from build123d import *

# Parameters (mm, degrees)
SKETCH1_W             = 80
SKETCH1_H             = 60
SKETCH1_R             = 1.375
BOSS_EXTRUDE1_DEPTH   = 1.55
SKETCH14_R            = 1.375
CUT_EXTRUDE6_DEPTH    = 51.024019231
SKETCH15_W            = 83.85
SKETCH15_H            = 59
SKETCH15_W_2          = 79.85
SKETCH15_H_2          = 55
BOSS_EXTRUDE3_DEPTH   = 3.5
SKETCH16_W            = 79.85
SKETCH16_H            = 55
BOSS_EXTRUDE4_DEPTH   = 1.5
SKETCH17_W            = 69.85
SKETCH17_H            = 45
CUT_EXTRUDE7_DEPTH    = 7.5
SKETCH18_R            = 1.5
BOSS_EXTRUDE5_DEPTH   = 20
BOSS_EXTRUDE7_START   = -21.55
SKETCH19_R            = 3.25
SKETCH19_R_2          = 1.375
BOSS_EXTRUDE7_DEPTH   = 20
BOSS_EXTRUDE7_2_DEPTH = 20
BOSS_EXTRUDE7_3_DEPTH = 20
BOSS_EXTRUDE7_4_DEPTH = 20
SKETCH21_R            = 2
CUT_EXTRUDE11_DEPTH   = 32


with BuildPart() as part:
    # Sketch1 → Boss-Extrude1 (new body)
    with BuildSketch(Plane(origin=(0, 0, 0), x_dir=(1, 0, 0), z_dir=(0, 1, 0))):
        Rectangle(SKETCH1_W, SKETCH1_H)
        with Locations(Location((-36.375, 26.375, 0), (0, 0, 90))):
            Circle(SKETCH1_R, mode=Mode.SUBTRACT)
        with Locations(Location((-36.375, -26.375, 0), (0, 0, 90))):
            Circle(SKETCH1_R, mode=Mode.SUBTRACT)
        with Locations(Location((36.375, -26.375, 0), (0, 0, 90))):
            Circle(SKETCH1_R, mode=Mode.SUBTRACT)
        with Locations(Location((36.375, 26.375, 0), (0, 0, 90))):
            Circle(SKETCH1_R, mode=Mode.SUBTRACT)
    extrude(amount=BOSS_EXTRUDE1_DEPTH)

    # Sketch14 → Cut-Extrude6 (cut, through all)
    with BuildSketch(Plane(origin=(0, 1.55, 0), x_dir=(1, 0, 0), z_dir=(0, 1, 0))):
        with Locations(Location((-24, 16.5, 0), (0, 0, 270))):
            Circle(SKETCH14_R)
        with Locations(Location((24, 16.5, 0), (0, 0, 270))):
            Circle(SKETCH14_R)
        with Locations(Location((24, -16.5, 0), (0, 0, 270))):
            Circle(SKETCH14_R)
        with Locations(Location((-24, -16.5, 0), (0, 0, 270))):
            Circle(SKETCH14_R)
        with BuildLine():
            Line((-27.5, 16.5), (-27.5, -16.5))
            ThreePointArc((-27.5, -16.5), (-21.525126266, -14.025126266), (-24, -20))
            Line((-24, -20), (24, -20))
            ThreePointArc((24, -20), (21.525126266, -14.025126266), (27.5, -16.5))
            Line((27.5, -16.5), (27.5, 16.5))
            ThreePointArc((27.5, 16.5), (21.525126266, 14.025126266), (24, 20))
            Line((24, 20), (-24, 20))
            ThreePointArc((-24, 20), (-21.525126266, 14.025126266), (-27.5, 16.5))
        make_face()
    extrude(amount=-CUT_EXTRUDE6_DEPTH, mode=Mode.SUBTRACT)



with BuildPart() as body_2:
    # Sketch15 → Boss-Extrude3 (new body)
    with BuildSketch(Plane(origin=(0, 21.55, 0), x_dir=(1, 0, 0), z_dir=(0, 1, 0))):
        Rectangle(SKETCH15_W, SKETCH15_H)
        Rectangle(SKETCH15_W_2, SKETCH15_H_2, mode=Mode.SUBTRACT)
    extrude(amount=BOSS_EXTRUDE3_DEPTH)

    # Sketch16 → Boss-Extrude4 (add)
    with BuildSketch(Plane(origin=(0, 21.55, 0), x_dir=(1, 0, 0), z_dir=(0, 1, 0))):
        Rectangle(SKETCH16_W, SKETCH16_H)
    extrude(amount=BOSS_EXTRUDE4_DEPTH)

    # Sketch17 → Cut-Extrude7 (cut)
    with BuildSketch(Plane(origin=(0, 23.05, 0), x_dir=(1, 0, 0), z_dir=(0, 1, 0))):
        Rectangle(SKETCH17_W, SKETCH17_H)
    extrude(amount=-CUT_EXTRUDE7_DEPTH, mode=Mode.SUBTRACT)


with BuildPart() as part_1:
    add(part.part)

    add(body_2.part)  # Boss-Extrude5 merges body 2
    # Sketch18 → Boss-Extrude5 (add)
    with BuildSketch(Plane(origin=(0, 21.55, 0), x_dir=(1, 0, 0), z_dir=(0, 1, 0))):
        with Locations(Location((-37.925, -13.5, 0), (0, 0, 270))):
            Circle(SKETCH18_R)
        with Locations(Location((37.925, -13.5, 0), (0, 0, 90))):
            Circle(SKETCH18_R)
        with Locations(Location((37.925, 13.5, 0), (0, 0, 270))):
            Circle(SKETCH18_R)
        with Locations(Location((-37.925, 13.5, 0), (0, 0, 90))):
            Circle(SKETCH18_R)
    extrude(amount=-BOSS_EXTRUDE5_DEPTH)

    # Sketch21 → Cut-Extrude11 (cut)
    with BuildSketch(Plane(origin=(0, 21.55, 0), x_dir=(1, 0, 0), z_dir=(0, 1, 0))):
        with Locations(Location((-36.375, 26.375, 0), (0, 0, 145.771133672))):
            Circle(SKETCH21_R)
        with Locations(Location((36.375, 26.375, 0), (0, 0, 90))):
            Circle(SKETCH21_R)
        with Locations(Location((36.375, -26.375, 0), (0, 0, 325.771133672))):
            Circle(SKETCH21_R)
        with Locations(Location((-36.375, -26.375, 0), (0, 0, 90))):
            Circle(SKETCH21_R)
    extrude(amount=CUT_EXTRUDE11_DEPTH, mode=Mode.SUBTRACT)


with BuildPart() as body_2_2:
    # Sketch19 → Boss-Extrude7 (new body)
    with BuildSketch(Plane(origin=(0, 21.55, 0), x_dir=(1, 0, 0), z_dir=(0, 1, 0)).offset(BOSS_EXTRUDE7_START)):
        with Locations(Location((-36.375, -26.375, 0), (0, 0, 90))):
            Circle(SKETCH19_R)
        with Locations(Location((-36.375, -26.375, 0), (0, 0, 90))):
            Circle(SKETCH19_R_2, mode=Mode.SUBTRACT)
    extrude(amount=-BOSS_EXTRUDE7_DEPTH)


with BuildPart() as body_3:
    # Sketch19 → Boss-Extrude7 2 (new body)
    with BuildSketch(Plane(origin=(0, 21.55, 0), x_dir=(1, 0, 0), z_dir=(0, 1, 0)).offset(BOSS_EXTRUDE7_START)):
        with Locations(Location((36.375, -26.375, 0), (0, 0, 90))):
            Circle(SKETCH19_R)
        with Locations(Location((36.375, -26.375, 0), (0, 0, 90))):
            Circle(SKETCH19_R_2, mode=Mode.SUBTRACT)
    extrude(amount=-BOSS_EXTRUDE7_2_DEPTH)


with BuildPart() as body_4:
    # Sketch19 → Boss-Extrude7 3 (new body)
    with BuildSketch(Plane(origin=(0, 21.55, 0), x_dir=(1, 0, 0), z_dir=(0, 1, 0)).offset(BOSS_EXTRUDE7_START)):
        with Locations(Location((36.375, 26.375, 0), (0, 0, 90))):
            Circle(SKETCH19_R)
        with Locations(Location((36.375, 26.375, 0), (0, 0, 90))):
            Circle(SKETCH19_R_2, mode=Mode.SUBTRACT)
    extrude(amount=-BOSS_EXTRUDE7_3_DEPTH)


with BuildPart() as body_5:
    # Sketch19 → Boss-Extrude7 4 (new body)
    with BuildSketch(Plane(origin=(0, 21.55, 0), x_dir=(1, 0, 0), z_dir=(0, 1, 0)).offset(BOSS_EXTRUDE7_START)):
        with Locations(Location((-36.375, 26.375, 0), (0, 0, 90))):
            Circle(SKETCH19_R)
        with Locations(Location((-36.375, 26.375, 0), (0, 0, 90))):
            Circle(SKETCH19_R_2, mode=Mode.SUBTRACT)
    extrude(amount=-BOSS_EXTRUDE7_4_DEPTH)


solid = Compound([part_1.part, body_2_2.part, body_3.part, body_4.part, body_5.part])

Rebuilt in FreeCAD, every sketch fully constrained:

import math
import FreeCAD as App
import Part
import Sketcher
from FreeCAD import Vector

doc = App.newDocument("Part")
body = doc.addObject("PartDesign::Body", "Body")

sketch1 = body.newObject("Sketcher::SketchObject", "Sketch")
sketch1.AttachmentSupport = (doc.getObject("XZ_Plane"), [""])
sketch1.MapMode = "FlatFace"
sketch1.addGeometry([
    Part.LineSegment(Vector(-40, -30, 0), Vector(-40, 30, 0)),
    Part.LineSegment(Vector(-40, 30, 0), Vector(40, 30, 0)),
    Part.LineSegment(Vector(40, 30, 0), Vector(40, -30, 0)),
    Part.LineSegment(Vector(40, -30, 0), Vector(-40, -30, 0)),
    Part.Circle(Vector(-36.4, 26.4, 0), Vector(0, 0, 1), 1.4),
    Part.Circle(Vector(36.4, 26.4, 0), Vector(0, 0, 1), 1.4),
    Part.Circle(Vector(-36.4, -26.4, 0), Vector(0, 0, 1), 1.4),
    Part.Circle(Vector(36.4, -26.4, 0), Vector(0, 0, 1), 1.4),
], False)
sketch1.addConstraint([
    Sketcher.Constraint("Coincident", 0, 2, 1, 1),
    Sketcher.Constraint("Coincident", 1, 2, 2, 1),
    Sketcher.Constraint("Coincident", 2, 2, 3, 1),
    Sketcher.Constraint("Coincident", 3, 2, 0, 1),
    Sketcher.Constraint("Vertical", 0),
    Sketcher.Constraint("Horizontal", 1),
    Sketcher.Constraint("Vertical", 2),
    Sketcher.Constraint("Horizontal", 3),
    Sketcher.Constraint("Equal", 4, 5),
    Sketcher.Constraint("Equal", 5, 6),
    Sketcher.Constraint("Equal", 6, 7),
    Sketcher.Constraint("Symmetric", 5, 3, 6, 3, -1, 1),
    Sketcher.Constraint("Symmetric", 4, 3, 7, 3, -1, 1),
    Sketcher.Constraint("Symmetric", 0, 2, 2, 2, -1, 1),
    Sketcher.Constraint("Symmetric", 4, 3, 5, 3, -2),
    Sketcher.Constraint("Diameter", 4, 2.75),
    Sketcher.Constraint("DistanceX", 1, 1, 1, 2, 80.0),
    Sketcher.Constraint("DistanceY", 0, 1, 0, 2, 60.0),
    Sketcher.Constraint("DistanceX", 4, 3, 5, 3, 72.75),
    Sketcher.Constraint("DistanceY", 6, 3, 4, 3, 52.75),
])
pad1 = body.newObject("PartDesign::Pad", "Pad")
pad1.Profile = sketch1
pad1.Length = 1.55
pad1.Reversed = True

sketch2 = body.newObject("Sketcher::SketchObject", "Sketch001")
sketch2.AttachmentSupport = (doc.getObject("XZ_Plane"), [""])
sketch2.MapMode = "FlatFace"
sketch2.AttachmentOffset = App.Placement(Vector(0, 0, -1.55), App.Rotation())
sketch2.addGeometry([
    Part.Circle(Vector(-24, -16.5, 0), Vector(0, 0, 1), 1.4),
    Part.Circle(Vector(24, -16.5, 0), Vector(0, 0, 1), 1.4),
    Part.Circle(Vector(24, 16.5, 0), Vector(0, 0, 1), 1.4),
    Part.Circle(Vector(-24, 16.5, 0), Vector(0, 0, 1), 1.4),
    Part.LineSegment(Vector(-27.5, -16.5, 0), Vector(-27.5, 16.5, 0)),
    Part.ArcOfCircle(Part.Circle(Vector(-24, 16.5, 0), Vector(0, 0, 1), 3.5), math.radians(180), math.radians(450)),
    Part.LineSegment(Vector(-24, 20, 0), Vector(24, 20, 0)),
    Part.ArcOfCircle(Part.Circle(Vector(24, 16.5, 0), Vector(0, 0, 1), 3.5), math.radians(90), math.radians(360)),
    Part.LineSegment(Vector(27.5, 16.5, 0), Vector(27.5, -16.5, 0)),
    Part.ArcOfCircle(Part.Circle(Vector(24, -16.5, 0), Vector(0, 0, 1), 3.5), math.radians(0), math.radians(270)),
    Part.LineSegment(Vector(24, -20, 0), Vector(-24, -20, 0)),
    Part.ArcOfCircle(Part.Circle(Vector(-24, -16.5, 0), Vector(0, 0, 1), 3.5), math.radians(-90), math.radians(180)),
], False)
sketch2.addConstraint([
    Sketcher.Constraint("Tangent", 4, 2, 5, 1),
    Sketcher.Constraint("Tangent", 5, 2, 6, 1),
    Sketcher.Constraint("Tangent", 6, 2, 7, 1),
    Sketcher.Constraint("Tangent", 7, 2, 8, 1),
    Sketcher.Constraint("Tangent", 8, 2, 9, 1),
    Sketcher.Constraint("Tangent", 9, 2, 10, 1),
    Sketcher.Constraint("Tangent", 10, 2, 11, 1),
    Sketcher.Constraint("Tangent", 11, 2, 4, 1),
    Sketcher.Constraint("Vertical", 4),
    Sketcher.Constraint("Horizontal", 6),
    Sketcher.Constraint("Vertical", 8),
    Sketcher.Constraint("Horizontal", 10),
    Sketcher.Constraint("Coincident", 5, 3, 3, 3),
    Sketcher.Constraint("Coincident", 7, 3, 2, 3),
    Sketcher.Constraint("Coincident", 9, 3, 1, 3),
    Sketcher.Constraint("Coincident", 11, 3, 0, 3),
    Sketcher.Constraint("Equal", 0, 1),
    Sketcher.Constraint("Equal", 1, 2),
    Sketcher.Constraint("Equal", 2, 3),
    Sketcher.Constraint("Equal", 5, 7),
    Sketcher.Constraint("Equal", 7, 9),
    Sketcher.Constraint("Equal", 9, 11),
    Sketcher.Constraint("Symmetric", 0, 3, 2, 3, -1, 1),
    Sketcher.Constraint("Radius", 5, 3.5),
    Sketcher.Constraint("Diameter", 0, 2.75),
    Sketcher.Constraint("DistanceX", 6, 1, 6, 2, 48.0),
    Sketcher.Constraint("DistanceY", 4, 1, 4, 2, 33.0),
])
pocket1 = body.newObject("PartDesign::Pocket", "Pocket")
pocket1.Profile = sketch2
pocket1.Type = "ThroughAll"
pocket1.Reversed = True
body2 = doc.addObject("PartDesign::Body", "Body001")

sketch3 = body2.newObject("Sketcher::SketchObject", "Sketch002")
sketch3.AttachmentSupport = (doc.getObject("XZ_Plane001"), [""])
sketch3.MapMode = "FlatFace"
sketch3.AttachmentOffset = App.Placement(Vector(0, 0, -21.55), App.Rotation())
sketch3.addGeometry([
    Part.LineSegment(Vector(-42, -30, 0), Vector(-42, 30, 0)),
    Part.LineSegment(Vector(-42, 30, 0), Vector(42, 30, 0)),
    Part.LineSegment(Vector(42, 30, 0), Vector(42, -30, 0)),
    Part.LineSegment(Vector(42, -30, 0), Vector(-42, -30, 0)),
    Part.LineSegment(Vector(40, 28, 0), Vector(-40, 28, 0)),
    Part.LineSegment(Vector(-40, 28, 0), Vector(-40, -28, 0)),
    Part.LineSegment(Vector(-40, -28, 0), Vector(40, -28, 0)),
    Part.LineSegment(Vector(40, -28, 0), Vector(40, 28, 0)),
], False)
sketch3.addConstraint([
    Sketcher.Constraint("Coincident", 0, 2, 1, 1),
    Sketcher.Constraint("Coincident", 1, 2, 2, 1),
    Sketcher.Constraint("Coincident", 2, 2, 3, 1),
    Sketcher.Constraint("Coincident", 3, 2, 0, 1),
    Sketcher.Constraint("Coincident", 4, 2, 5, 1),
    Sketcher.Constraint("Coincident", 5, 2, 6, 1),
    Sketcher.Constraint("Coincident", 6, 2, 7, 1),
    Sketcher.Constraint("Coincident", 7, 2, 4, 1),
    Sketcher.Constraint("Vertical", 0),
    Sketcher.Constraint("Horizontal", 1),
    Sketcher.Constraint("Vertical", 2),
    Sketcher.Constraint("Horizontal", 3),
    Sketcher.Constraint("Horizontal", 4),
    Sketcher.Constraint("Vertical", 5),
    Sketcher.Constraint("Horizontal", 6),
    Sketcher.Constraint("Vertical", 7),
    Sketcher.Constraint("Symmetric", 0, 2, 2, 2, -1, 1),
    Sketcher.Constraint("Symmetric", 4, 2, 6, 2, -1, 1),
    Sketcher.Constraint("DistanceY", 0, 1, 0, 2, 59.0),
    Sketcher.Constraint("DistanceY", 5, 2, 5, 1, 55.0),
    Sketcher.Constraint("DistanceX", 0, 2, 4, 2, 2.0),
    Sketcher.Constraint("DistanceX", 1, 1, 1, 2, 83.85),
])
pad2 = body2.newObject("PartDesign::Pad", "Pad001")
pad2.Profile = sketch3
pad2.Length = 3.5
pad2.Reversed = True

sketch4 = body2.newObject("Sketcher::SketchObject", "Sketch003")
sketch4.AttachmentSupport = (doc.getObject("XZ_Plane001"), [""])
sketch4.MapMode = "FlatFace"
sketch4.AttachmentOffset = App.Placement(Vector(0, 0, -21.55), App.Rotation())
sketch4.addGeometry([
    Part.LineSegment(Vector(-40, -28, 0), Vector(-40, 28, 0)),
    Part.LineSegment(Vector(-40, 28, 0), Vector(40, 28, 0)),
    Part.LineSegment(Vector(40, 28, 0), Vector(40, -28, 0)),
    Part.LineSegment(Vector(40, -28, 0), Vector(-40, -28, 0)),
], False)
sketch4.addConstraint([
    Sketcher.Constraint("Coincident", 0, 2, 1, 1),
    Sketcher.Constraint("Coincident", 1, 2, 2, 1),
    Sketcher.Constraint("Coincident", 2, 2, 3, 1),
    Sketcher.Constraint("Coincident", 3, 2, 0, 1),
    Sketcher.Constraint("Vertical", 0),
    Sketcher.Constraint("Horizontal", 1),
    Sketcher.Constraint("Vertical", 2),
    Sketcher.Constraint("Horizontal", 3),
    Sketcher.Constraint("Symmetric", 0, 2, 2, 2, -1, 1),
    Sketcher.Constraint("DistanceY", 0, 1, 0, 2, 55.0),
    Sketcher.Constraint("DistanceX", 1, 1, 1, 2, 79.85),
])
pad3 = body2.newObject("PartDesign::Pad", "Pad002")
pad3.Profile = sketch4
pad3.Length = 1.5
pad3.Reversed = True

sketch5 = body2.newObject("Sketcher::SketchObject", "Sketch004")
sketch5.AttachmentSupport = (doc.getObject("XZ_Plane001"), [""])
sketch5.MapMode = "FlatFace"
sketch5.AttachmentOffset = App.Placement(Vector(0, 0, -23.05), App.Rotation())
sketch5.addGeometry([
    Part.LineSegment(Vector(-35, -22, 0), Vector(-35, 22, 0)),
    Part.LineSegment(Vector(-35, 22, 0), Vector(35, 22, 0)),
    Part.LineSegment(Vector(35, 22, 0), Vector(35, -22, 0)),
    Part.LineSegment(Vector(35, -22, 0), Vector(-35, -22, 0)),
], False)
sketch5.addConstraint([
    Sketcher.Constraint("Coincident", 0, 2, 1, 1),
    Sketcher.Constraint("Coincident", 1, 2, 2, 1),
    Sketcher.Constraint("Coincident", 2, 2, 3, 1),
    Sketcher.Constraint("Coincident", 3, 2, 0, 1),
    Sketcher.Constraint("Vertical", 0),
    Sketcher.Constraint("Horizontal", 1),
    Sketcher.Constraint("Vertical", 2),
    Sketcher.Constraint("Horizontal", 3),
    Sketcher.Constraint("Symmetric", 0, 2, 2, 2, -1, 1),
    Sketcher.Constraint("DistanceY", 0, 1, 0, 2, 45.0),
    Sketcher.Constraint("DistanceX", 1, 1, 1, 2, 69.85),
])
pocket2 = body2.newObject("PartDesign::Pocket", "Pocket001")
pocket2.Profile = sketch5
pocket2.Length = 7.5
pocket2.Reversed = True
body.AllowCompound = True
doc.recompute()

boolean = body.newObject("PartDesign::Boolean", "Boolean")
boolean.Type = "Fuse"
boolean.addObjects([body2])

sketch6 = body.newObject("Sketcher::SketchObject", "Sketch005")
sketch6.AttachmentSupport = (doc.getObject("XZ_Plane"), [""])
sketch6.MapMode = "FlatFace"
sketch6.AttachmentOffset = App.Placement(Vector(0, 0, -21.55), App.Rotation())
sketch6.addGeometry([
    Part.Circle(Vector(-37.9, 13.5, 0), Vector(0, 0, 1), 1.5),
    Part.Circle(Vector(37.9, 13.5, 0), Vector(0, 0, 1), 1.5),
    Part.Circle(Vector(37.9, -13.5, 0), Vector(0, 0, 1), 1.5),
    Part.Circle(Vector(-37.9, -13.5, 0), Vector(0, 0, 1), 1.5),
], False)
sketch6.addConstraint([
    Sketcher.Constraint("Equal", 0, 1),
    Sketcher.Constraint("Equal", 1, 2),
    Sketcher.Constraint("Equal", 2, 3),
    Sketcher.Constraint("Symmetric", 0, 3, 2, 3, -1, 1),
    Sketcher.Constraint("Symmetric", 1, 3, 3, 3, -1, 1),
    Sketcher.Constraint("Symmetric", 0, 3, 1, 3, -2),
    Sketcher.Constraint("Diameter", 0, 3.0),
    Sketcher.Constraint("DistanceY", 2, 3, 1, 3, 27.0),
    Sketcher.Constraint("DistanceX", 0, 3, 1, 3, 75.85),
])
pad4 = body.newObject("PartDesign::Pad", "Pad003")
pad4.Profile = sketch6
pad4.Length = 20

sketch7 = body.newObject("Sketcher::SketchObject", "Sketch006")
sketch7.AttachmentSupport = (doc.getObject("XZ_Plane"), [""])
sketch7.MapMode = "FlatFace"
sketch7.AttachmentOffset = App.Placement(Vector(0, 0, -21.55), App.Rotation())
sketch7.addGeometry([
    Part.Circle(Vector(-36.4, -26.4, 0), Vector(0, 0, 1), 2),
    Part.Circle(Vector(36.4, -26.4, 0), Vector(0, 0, 1), 2),
    Part.Circle(Vector(36.4, 26.4, 0), Vector(0, 0, 1), 2),
    Part.Circle(Vector(-36.4, 26.4, 0), Vector(0, 0, 1), 2),
], False)
sketch7.addConstraint([
    Sketcher.Constraint("Equal", 0, 1),
    Sketcher.Constraint("Equal", 1, 2),
    Sketcher.Constraint("Equal", 2, 3),
    Sketcher.Constraint("Symmetric", 0, 3, 2, 3, -1, 1),
    Sketcher.Constraint("Symmetric", 1, 3, 3, 3, -1, 1),
    Sketcher.Constraint("Symmetric", 0, 3, 1, 3, -2),
    Sketcher.Constraint("Diameter", 0, 4.0),
    Sketcher.Constraint("DistanceX", 0, 3, 1, 3, 72.75),
    Sketcher.Constraint("DistanceY", 1, 3, 2, 3, 52.75),
])
pocket3 = body.newObject("PartDesign::Pocket", "Pocket002")
pocket3.Profile = sketch7
pocket3.Length = 32
body3 = doc.addObject("PartDesign::Body", "Body002")

sketch8 = body3.newObject("Sketcher::SketchObject", "Sketch007")
sketch8.AttachmentSupport = (doc.getObject("XZ_Plane002"), [""])
sketch8.MapMode = "FlatFace"
sketch8.addGeometry([
    Part.Circle(Vector(-36.4, 26.4, 0), Vector(0, 0, 1), 3.2),
    Part.Circle(Vector(-36.4, 26.4, 0), Vector(0, 0, 1), 1.4),
], False)
sketch8.addConstraint([
    Sketcher.Constraint("Coincident", 1, 3, 0, 3),
    Sketcher.Constraint("Diameter", 0, 6.5),
    Sketcher.Constraint("Diameter", 1, 2.75),
    Sketcher.Constraint("DistanceX", 0, 3, -1, 1, 36.375),
    Sketcher.Constraint("DistanceY", -1, 1, 0, 3, 26.375),
])
pad5 = body3.newObject("PartDesign::Pad", "Pad004")
pad5.Profile = sketch8
pad5.Length = 20
body4 = doc.addObject("PartDesign::Body", "Body003")

sketch9 = body4.newObject("Sketcher::SketchObject", "Sketch008")
sketch9.AttachmentSupport = (doc.getObject("XZ_Plane003"), [""])
sketch9.MapMode = "FlatFace"
sketch9.addGeometry([
    Part.Circle(Vector(36.4, 26.4, 0), Vector(0, 0, 1), 3.2),
    Part.Circle(Vector(36.4, 26.4, 0), Vector(0, 0, 1), 1.4),
], False)
sketch9.addConstraint([
    Sketcher.Constraint("Coincident", 1, 3, 0, 3),
    Sketcher.Constraint("Diameter", 0, 6.5),
    Sketcher.Constraint("Diameter", 1, 2.75),
    Sketcher.Constraint("DistanceX", -1, 1, 0, 3, 36.375),
    Sketcher.Constraint("DistanceY", -1, 1, 0, 3, 26.375),
])
pad6 = body4.newObject("PartDesign::Pad", "Pad005")
pad6.Profile = sketch9
pad6.Length = 20
body5 = doc.addObject("PartDesign::Body", "Body004")

sketch10 = body5.newObject("Sketcher::SketchObject", "Sketch009")
sketch10.AttachmentSupport = (doc.getObject("XZ_Plane004"), [""])
sketch10.MapMode = "FlatFace"
sketch10.addGeometry([
    Part.Circle(Vector(36.4, -26.4, 0), Vector(0, 0, 1), 3.2),
    Part.Circle(Vector(36.4, -26.4, 0), Vector(0, 0, 1), 1.4),
], False)
sketch10.addConstraint([
    Sketcher.Constraint("Coincident", 1, 3, 0, 3),
    Sketcher.Constraint("Diameter", 0, 6.5),
    Sketcher.Constraint("Diameter", 1, 2.75),
    Sketcher.Constraint("DistanceX", -1, 1, 0, 3, 36.375),
    Sketcher.Constraint("DistanceY", 0, 3, -1, 1, 26.375),
])
pad7 = body5.newObject("PartDesign::Pad", "Pad006")
pad7.Profile = sketch10
pad7.Length = 20
body6 = doc.addObject("PartDesign::Body", "Body005")

sketch11 = body6.newObject("Sketcher::SketchObject", "Sketch010")
sketch11.AttachmentSupport = (doc.getObject("XZ_Plane005"), [""])
sketch11.MapMode = "FlatFace"
sketch11.addGeometry([
    Part.Circle(Vector(-36.4, -26.4, 0), Vector(0, 0, 1), 3.2),
    Part.Circle(Vector(-36.4, -26.4, 0), Vector(0, 0, 1), 1.4),
], False)
sketch11.addConstraint([
    Sketcher.Constraint("Coincident", 1, 3, 0, 3),
    Sketcher.Constraint("Diameter", 0, 6.5),
    Sketcher.Constraint("Diameter", 1, 2.75),
    Sketcher.Constraint("DistanceX", 0, 3, -1, 1, 36.375),
    Sketcher.Constraint("DistanceY", 0, 3, -1, 1, 26.375),
])
pad8 = body6.newObject("PartDesign::Pad", "Pad007")
pad8.Profile = sketch11
pad8.Length = 20

doc.recompute()
